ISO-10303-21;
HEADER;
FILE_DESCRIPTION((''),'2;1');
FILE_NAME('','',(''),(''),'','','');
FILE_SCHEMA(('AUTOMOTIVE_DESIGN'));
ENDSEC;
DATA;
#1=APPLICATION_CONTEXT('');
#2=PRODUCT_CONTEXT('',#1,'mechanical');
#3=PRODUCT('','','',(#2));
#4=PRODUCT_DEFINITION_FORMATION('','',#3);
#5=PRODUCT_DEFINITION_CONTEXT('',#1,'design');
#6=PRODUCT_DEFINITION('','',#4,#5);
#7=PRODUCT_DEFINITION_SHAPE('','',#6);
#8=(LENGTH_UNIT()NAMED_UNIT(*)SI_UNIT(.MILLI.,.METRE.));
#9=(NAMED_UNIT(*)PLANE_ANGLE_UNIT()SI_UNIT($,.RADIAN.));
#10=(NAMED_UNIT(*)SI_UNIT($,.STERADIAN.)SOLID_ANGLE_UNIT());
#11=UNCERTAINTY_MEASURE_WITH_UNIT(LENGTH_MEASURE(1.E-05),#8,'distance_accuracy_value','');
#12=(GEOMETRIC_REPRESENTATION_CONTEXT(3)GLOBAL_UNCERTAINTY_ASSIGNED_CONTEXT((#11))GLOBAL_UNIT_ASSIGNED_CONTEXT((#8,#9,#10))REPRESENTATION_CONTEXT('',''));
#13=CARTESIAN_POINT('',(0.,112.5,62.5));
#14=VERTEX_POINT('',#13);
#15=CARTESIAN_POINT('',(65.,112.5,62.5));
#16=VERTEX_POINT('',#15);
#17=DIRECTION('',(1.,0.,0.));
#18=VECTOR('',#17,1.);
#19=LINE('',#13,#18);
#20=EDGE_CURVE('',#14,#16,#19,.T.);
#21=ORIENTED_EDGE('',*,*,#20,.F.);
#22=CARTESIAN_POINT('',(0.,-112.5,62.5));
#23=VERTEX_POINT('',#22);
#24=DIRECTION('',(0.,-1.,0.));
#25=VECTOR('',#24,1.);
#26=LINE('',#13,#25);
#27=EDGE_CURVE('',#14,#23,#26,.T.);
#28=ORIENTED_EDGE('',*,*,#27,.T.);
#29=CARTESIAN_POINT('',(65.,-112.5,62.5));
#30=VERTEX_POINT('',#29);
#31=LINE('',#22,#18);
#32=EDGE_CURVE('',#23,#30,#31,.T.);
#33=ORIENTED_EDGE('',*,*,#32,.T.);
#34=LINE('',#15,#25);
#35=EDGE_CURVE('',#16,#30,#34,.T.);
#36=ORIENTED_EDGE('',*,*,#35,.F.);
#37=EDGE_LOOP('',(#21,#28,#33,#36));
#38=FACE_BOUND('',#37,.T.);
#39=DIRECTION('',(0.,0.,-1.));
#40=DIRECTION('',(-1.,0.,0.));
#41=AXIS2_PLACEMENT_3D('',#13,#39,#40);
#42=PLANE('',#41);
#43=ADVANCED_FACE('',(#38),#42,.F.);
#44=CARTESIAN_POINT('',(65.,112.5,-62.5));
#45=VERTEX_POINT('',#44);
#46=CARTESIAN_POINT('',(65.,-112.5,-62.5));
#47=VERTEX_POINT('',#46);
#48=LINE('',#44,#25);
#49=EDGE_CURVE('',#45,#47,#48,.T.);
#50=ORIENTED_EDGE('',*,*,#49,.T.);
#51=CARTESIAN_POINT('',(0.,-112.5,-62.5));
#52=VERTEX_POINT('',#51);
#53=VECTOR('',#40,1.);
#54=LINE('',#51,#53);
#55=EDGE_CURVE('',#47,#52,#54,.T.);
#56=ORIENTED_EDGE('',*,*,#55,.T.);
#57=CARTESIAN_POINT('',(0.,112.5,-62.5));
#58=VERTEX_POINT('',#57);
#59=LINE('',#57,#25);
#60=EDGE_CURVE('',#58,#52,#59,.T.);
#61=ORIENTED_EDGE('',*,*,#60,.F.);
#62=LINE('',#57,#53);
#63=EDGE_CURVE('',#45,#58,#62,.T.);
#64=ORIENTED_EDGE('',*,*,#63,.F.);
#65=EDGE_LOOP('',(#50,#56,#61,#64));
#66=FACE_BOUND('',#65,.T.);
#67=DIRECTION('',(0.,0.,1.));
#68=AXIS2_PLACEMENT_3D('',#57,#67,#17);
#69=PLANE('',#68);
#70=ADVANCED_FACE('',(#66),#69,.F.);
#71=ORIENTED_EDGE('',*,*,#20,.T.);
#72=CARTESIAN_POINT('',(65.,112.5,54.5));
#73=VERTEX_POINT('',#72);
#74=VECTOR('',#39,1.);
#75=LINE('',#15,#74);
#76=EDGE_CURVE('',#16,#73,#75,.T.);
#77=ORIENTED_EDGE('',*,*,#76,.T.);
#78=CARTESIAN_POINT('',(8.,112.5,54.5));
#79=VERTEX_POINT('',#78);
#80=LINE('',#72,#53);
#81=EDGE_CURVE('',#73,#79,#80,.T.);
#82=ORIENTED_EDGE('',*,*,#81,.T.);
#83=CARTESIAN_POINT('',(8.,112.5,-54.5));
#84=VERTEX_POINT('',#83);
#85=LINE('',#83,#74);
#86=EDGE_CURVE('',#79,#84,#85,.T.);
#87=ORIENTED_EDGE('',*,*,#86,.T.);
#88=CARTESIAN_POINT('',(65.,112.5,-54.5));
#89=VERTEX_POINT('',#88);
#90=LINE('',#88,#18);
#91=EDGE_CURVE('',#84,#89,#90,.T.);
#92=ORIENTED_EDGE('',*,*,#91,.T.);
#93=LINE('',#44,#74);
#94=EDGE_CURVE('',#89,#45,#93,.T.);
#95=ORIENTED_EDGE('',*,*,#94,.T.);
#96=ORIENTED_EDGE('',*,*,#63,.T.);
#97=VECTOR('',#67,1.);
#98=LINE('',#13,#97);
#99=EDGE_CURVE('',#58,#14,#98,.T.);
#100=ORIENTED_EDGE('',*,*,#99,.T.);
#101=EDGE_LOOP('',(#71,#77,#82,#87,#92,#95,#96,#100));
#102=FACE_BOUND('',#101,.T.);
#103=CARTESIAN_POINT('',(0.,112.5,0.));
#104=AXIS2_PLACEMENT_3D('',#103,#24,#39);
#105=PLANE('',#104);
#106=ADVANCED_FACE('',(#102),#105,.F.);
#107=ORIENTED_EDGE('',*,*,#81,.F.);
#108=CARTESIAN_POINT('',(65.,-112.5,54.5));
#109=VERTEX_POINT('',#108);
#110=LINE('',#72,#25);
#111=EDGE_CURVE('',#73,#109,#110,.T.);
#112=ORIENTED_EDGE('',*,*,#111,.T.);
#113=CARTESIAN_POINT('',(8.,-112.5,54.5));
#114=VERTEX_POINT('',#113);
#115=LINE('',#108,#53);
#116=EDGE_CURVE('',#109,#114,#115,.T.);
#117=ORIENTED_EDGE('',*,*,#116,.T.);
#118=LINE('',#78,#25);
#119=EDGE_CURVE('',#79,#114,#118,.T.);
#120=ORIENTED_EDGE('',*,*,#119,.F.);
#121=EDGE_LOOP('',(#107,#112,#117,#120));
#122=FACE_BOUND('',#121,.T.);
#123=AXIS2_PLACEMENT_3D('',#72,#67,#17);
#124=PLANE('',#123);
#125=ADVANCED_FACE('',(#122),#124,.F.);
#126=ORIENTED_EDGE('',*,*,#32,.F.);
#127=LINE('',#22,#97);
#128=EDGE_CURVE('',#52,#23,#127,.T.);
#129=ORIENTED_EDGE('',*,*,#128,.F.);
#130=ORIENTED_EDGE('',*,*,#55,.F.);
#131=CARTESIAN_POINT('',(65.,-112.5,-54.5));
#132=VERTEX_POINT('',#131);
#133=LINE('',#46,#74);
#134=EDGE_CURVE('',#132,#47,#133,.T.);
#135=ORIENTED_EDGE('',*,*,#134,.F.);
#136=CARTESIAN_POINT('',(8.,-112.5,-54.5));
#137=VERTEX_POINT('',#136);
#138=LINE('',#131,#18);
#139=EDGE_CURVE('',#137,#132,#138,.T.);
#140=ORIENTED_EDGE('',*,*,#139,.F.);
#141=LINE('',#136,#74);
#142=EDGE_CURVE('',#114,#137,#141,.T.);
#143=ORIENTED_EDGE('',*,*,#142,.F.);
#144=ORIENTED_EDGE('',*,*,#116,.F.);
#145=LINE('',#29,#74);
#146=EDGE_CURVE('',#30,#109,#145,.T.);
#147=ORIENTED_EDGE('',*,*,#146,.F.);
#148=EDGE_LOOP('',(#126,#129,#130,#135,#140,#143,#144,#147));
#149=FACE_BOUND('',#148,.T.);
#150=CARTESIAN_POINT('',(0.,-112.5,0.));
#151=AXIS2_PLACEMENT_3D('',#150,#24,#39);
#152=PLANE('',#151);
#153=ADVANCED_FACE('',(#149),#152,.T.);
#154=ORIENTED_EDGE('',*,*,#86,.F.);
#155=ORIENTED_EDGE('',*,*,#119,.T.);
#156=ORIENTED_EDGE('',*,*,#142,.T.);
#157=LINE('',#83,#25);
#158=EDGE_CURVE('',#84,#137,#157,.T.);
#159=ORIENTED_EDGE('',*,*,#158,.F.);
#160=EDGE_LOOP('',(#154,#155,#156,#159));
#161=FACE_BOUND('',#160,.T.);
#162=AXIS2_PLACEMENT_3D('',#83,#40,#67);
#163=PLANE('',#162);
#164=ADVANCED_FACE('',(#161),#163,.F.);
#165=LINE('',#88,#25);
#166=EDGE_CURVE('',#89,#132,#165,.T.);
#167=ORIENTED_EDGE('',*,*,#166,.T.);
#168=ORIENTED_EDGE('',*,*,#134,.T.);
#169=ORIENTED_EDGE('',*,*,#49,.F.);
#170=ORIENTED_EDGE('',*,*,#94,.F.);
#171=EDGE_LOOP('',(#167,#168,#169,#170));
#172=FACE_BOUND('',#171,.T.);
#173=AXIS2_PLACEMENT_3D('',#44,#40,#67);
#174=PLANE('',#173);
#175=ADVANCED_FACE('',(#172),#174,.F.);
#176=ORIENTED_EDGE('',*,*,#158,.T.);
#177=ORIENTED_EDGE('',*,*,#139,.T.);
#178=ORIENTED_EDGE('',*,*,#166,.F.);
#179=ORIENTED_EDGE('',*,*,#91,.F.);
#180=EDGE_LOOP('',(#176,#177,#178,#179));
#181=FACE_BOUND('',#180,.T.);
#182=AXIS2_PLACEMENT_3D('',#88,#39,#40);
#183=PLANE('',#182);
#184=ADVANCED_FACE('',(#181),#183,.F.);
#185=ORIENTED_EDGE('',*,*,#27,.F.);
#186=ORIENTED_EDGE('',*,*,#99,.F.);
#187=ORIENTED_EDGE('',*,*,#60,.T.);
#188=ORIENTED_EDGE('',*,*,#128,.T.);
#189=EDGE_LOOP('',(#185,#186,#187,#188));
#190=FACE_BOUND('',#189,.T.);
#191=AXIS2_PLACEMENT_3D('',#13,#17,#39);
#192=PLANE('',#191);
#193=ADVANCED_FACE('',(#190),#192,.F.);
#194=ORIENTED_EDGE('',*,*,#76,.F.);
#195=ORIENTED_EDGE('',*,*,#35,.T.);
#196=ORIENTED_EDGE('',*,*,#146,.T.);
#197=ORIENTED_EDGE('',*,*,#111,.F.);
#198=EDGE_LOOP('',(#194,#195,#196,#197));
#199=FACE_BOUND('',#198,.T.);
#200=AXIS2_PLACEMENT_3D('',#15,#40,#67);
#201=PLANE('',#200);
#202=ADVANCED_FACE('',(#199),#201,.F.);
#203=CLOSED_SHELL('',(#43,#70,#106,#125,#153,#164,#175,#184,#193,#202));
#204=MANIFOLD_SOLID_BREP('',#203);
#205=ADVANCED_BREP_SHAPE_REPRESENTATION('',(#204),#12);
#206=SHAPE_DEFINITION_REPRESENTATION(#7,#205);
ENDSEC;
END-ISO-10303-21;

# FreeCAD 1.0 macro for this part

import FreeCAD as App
import Part
import Sketcher
from FreeCAD import Vector
Q = App.Units.Quantity


def add_polygon(sketch, points):
    """Adds a closed chain of lines whose ends are joined by coincident constraints."""
    first, n = sketch.GeometryCount, len(points)
    for a, b in zip(points, points[1:] + points[:1]):
        sketch.addGeometry(Part.LineSegment(App.Vector(*a, 0), App.Vector(*b, 0)), False)
    for i in range(n):
        sketch.addConstraint(Sketcher.Constraint("Coincident", first + i, 2, first + (i + 1) % n, 1))

doc = App.newDocument("Part")
params = doc.addObject("Spreadsheet::Sheet", "Params")
for row, (alias, value) in enumerate([
    ("sketch1_width", "65 mm"),
    ("sketch1_width2", "57 mm"),
    ("sketch1_height", "125 mm"),
    ("sketch1_height2", "8 mm"),
    ("pad1_length", "225 mm"),
], start=1):
    params.set(f"A{row}", alias)
    params.set(f"B{row}", "=" + value)
    params.setAlias(f"B{row}", alias)

body = doc.addObject("PartDesign::Body", "Body")

# Sketch on XZ plane
sketch1 = body.newObject("Sketcher::SketchObject", "Sketch")
sketch1.AttachmentSupport = (doc.getObject("XZ_Plane"), [""])
sketch1.MapMode = "FlatFace"
add_polygon(sketch1, [(0, -62.5), (0, 62.5), (65, 62.5), (65, 54.5), (8, 54.5), (8, -54.5), (65, -54.5), (65, -62.5)])  # lines 0-7
sketch1.addConstraint([
    Sketcher.Constraint("Vertical", 0),
    Sketcher.Constraint("Horizontal", 1),
    Sketcher.Constraint("Vertical", 2),
    Sketcher.Constraint("Horizontal", 3),
    Sketcher.Constraint("Vertical", 4),
    Sketcher.Constraint("Horizontal", 5),
    Sketcher.Constraint("Vertical", 6),
    Sketcher.Constraint("Horizontal", 7),
    Sketcher.Constraint("Symmetric", 0, 2, 7, 2, -1, 1),
    Sketcher.Constraint("Symmetric", 2, 2, 5, 2, -1),
    Sketcher.Constraint("DistanceX", 1, 1, 1, 2, Q("65 mm")),
    Sketcher.Constraint("DistanceX", 3, 2, 3, 1, Q("57 mm")),
    Sketcher.Constraint("DistanceY", 0, 1, 0, 2, Q("125 mm")),
    Sketcher.Constraint("DistanceY", 2, 2, 2, 1, Q("8 mm")),
])
sketch1.setExpression("Constraints[18]", "Params.sketch1_width")
sketch1.setExpression("Constraints[19]", "Params.sketch1_width2")
sketch1.setExpression("Constraints[20]", "Params.sketch1_height")
sketch1.setExpression("Constraints[21]", "Params.sketch1_height2")
pad1 = body.newObject("PartDesign::Pad", "Pad")
pad1.Profile = sketch1
pad1.setExpression("Length", "Params.pad1_length")
pad1.Midplane = True

doc.recompute()
